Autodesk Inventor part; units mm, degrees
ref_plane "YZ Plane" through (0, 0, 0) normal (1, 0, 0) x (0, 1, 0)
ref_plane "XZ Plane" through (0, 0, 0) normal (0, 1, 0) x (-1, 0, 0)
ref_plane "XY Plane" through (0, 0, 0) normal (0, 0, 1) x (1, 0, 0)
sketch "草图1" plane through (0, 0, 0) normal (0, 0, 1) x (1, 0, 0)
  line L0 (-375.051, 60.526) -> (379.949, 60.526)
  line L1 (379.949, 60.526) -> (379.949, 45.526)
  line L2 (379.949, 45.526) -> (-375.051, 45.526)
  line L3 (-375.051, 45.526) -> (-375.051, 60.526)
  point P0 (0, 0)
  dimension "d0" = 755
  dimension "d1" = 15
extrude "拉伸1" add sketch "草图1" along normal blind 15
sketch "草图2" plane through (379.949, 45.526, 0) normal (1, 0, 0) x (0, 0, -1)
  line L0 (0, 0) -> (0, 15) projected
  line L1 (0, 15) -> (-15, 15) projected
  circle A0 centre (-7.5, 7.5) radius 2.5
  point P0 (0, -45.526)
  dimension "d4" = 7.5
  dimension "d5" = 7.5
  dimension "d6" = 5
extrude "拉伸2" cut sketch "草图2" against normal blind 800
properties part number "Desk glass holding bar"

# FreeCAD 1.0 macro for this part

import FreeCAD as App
import Part
import Sketcher

V = App.Vector
Q = App.Units.Quantity

doc = App.newDocument("Part")
body = doc.addObject("PartDesign::Body", "Body")

# Sketch on XY plane
sketch1 = doc.addObject("Sketcher::SketchObject", "Sketch")
body.addObject(sketch1)
sketch1.AttachmentSupport = (doc.XY_Plane, [""])
sketch1.MapMode = "FlatFace"
sketch1.addGeometry([
    Part.LineSegment(V(379.949, 60.526, 0), V(-375.051, 60.526, 0)),
    Part.LineSegment(V(-375.051, 60.526, 0), V(-375.051, 45.526, 0)),
    Part.LineSegment(V(-375.051, 45.526, 0), V(379.949, 45.526, 0)),
    Part.LineSegment(V(379.949, 45.526, 0), V(379.949, 60.526, 0)),
], False)
sketch1.addConstraint([
    Sketcher.Constraint("Coincident", 0, 2, 1, 1),
    Sketcher.Constraint("Coincident", 1, 2, 2, 1),
    Sketcher.Constraint("Coincident", 2, 2, 3, 1),
    Sketcher.Constraint("Coincident", 3, 2, 0, 1),
    Sketcher.Constraint("Horizontal", 0),
    Sketcher.Constraint("Vertical", 1),
    Sketcher.Constraint("Horizontal", 2),
    Sketcher.Constraint("Vertical", 3),
    Sketcher.Constraint("DistanceX", 0, 2, 0, 1, Q("755 mm")),
    Sketcher.Constraint("DistanceY", 1, 2, 1, 1, Q("15 mm")),
    Sketcher.Constraint("DistanceX", 0, 2, -1, 1, Q("375.051 mm")),
    Sketcher.Constraint("DistanceY", -1, 1, 0, 2, Q("60.526 mm")),
])
pad1 = doc.addObject("PartDesign::Pad", "Pad")
body.addObject(pad1)
pad1.Profile = sketch1
pad1.Length = 15

# Sketch on YZ plane
sketch2 = doc.addObject("Sketcher::SketchObject", "Sketch001")
body.addObject(sketch2)
sketch2.AttachmentSupport = (doc.YZ_Plane, [""])
sketch2.MapMode = "FlatFace"
sketch2.AttachmentOffset = App.Placement(V(0, 0, 379.949), App.Rotation())
sketch2.addGeometry(Part.Circle(V(53.026, 7.5, 0), V(0, 0, 1), 2.5), False)
sketch2.addConstraint([
    Sketcher.Constraint("Diameter", 0, Q("5 mm")),
    Sketcher.Constraint("DistanceY", -1, 1, 0, 3, Q("7.5 mm")),
    Sketcher.Constraint("DistanceX", -1, 1, 0, 3, Q("53.026 mm")),
])
pocket1 = doc.addObject("PartDesign::Pocket", "Pocket")
body.addObject(pocket1)
pocket1.Profile = sketch2
pocket1.Length = 800

doc.recompute()
